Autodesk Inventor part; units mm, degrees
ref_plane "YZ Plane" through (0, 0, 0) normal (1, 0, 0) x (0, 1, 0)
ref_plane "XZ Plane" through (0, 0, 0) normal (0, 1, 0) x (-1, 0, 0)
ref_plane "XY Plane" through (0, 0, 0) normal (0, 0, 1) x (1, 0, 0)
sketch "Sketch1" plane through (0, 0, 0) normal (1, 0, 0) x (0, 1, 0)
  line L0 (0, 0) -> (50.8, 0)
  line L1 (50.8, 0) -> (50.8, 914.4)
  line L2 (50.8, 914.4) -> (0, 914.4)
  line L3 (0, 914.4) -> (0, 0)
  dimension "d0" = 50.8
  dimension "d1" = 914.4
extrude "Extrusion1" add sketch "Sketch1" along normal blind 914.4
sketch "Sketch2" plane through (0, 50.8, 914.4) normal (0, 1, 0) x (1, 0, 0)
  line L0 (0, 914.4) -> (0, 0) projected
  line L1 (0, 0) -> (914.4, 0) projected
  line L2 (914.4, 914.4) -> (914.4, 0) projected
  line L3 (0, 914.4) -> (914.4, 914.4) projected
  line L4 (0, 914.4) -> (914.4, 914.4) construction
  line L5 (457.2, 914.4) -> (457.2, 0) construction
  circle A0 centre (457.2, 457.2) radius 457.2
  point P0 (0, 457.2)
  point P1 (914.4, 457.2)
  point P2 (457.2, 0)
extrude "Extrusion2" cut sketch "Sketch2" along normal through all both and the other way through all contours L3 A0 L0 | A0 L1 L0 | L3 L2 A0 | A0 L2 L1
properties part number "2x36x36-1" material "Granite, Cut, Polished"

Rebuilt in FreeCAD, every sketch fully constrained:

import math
import FreeCAD as App
import Part
import Sketcher

V = App.Vector
Q = App.Units.Quantity


def add_polygon(sketch, points):
    """Adds a closed chain of lines whose ends are joined by coincident constraints."""
    first, n = sketch.GeometryCount, len(points)
    for a, b in zip(points, points[1:] + points[:1]):
        sketch.addGeometry(Part.LineSegment(App.Vector(*a, 0), App.Vector(*b, 0)), False)
    for i in range(n):
        sketch.addConstraint(Sketcher.Constraint("Coincident", first + i, 2, first + (i + 1) % n, 1))

doc = App.newDocument("Part")
body = doc.addObject("PartDesign::Body", "Body")

sketch1 = doc.addObject("Sketcher::SketchObject", "Sketch")
body.addObject(sketch1)
sketch1.AttachmentSupport = (doc.YZ_Plane, [""])
sketch1.MapMode = "FlatFace"
add_polygon(sketch1, [(0, 914.4), (0, 0), (50.8, 0), (50.8, 914.4)])
sketch1.addConstraint([
    Sketcher.Constraint("Vertical", 0),
    Sketcher.Constraint("Horizontal", 1),
    Sketcher.Constraint("Vertical", 2),
    Sketcher.Constraint("Horizontal", 3),
    Sketcher.Constraint("Coincident", 0, 2, -1, 1),
    Sketcher.Constraint("DistanceX", 1, 1, 1, 2, Q("2 in")),
    Sketcher.Constraint("DistanceY", 0, 2, 0, 1, Q("36 in")),
])
pad1 = doc.addObject("PartDesign::Pad", "Pad")
body.addObject(pad1)
pad1.Profile = sketch1
pad1.Length = Q("36 in")

sketch2 = doc.addObject("Sketcher::SketchObject", "Sketch001")
body.addObject(sketch2)
sketch2.AttachmentSupport = (doc.XZ_Plane, [""])
sketch2.MapMode = "FlatFace"
sketch2.AttachmentOffset = App.Placement(V(0, 0, -2 * 25.4), App.Rotation())
sketch2.addGeometry([
    Part.LineSegment(V(457.2, 0, 0), V(0, 0, 0)),
    Part.LineSegment(V(0, 0, 0), V(0, 457.2, 0)),
    Part.ArcOfCircle(Part.Circle(V(457.2, 457.2, 0), V(0, 0, 1), 457.2), math.radians(180), math.radians(270)),
    Part.ArcOfCircle(Part.Circle(V(457.2, 457.2, 0), V(0, 0, 1), 457.2), math.radians(90), math.radians(180)),
    Part.LineSegment(V(0, 457.2, 0), V(0, 914.4, 0)),
    Part.LineSegment(V(0, 914.4, 0), V(457.2, 914.4, 0)),
    Part.LineSegment(V(914.4, 0, 0), V(457.2, 0, 0)),
    Part.ArcOfCircle(Part.Circle(V(457.2, 457.2, 0), V(0, 0, 1), 457.2), math.radians(-90), math.radians(0)),
    Part.LineSegment(V(914.4, 457.2, 0), V(914.4, 0, 0)),
    Part.ArcOfCircle(Part.Circle(V(457.2, 457.2, 0), V(0, 0, 1), 457.2), math.radians(0), math.radians(90)),
    Part.LineSegment(V(457.2, 914.4, 0), V(914.4, 914.4, 0)),
    Part.LineSegment(V(914.4, 914.4, 0), V(914.4, 457.2, 0)),
], False)
sketch2.addConstraint([
    Sketcher.Constraint("Coincident", 0, 2, 1, 1),
    Sketcher.Constraint("Tangent", 1, 2, 2, 1),
    Sketcher.Constraint("Tangent", 2, 2, 0, 1),
    Sketcher.Constraint("Tangent", 3, 2, 4, 1),
    Sketcher.Constraint("Coincident", 4, 2, 5, 1),
    Sketcher.Constraint("Tangent", 5, 2, 3, 1),
    Sketcher.Constraint("Tangent", 6, 2, 7, 1),
    Sketcher.Constraint("Tangent", 7, 2, 8, 1),
    Sketcher.Constraint("Coincident", 8, 2, 6, 1),
    Sketcher.Constraint("Tangent", 9, 2, 10, 1),
    Sketcher.Constraint("Coincident", 10, 2, 11, 1),
    Sketcher.Constraint("Tangent", 11, 2, 9, 1),
    Sketcher.Constraint("Horizontal", 0),
    Sketcher.Constraint("Vertical", 1),
    Sketcher.Constraint("Vertical", 4),
    Sketcher.Constraint("Horizontal", 5),
    Sketcher.Constraint("Horizontal", 6),
    Sketcher.Constraint("Vertical", 8),
    Sketcher.Constraint("Horizontal", 10),
    Sketcher.Constraint("Vertical", 11),
    Sketcher.Constraint("Coincident", 0, 2, -1, 1),
    Sketcher.Constraint("Coincident", 3, 3, 2, 3),
    Sketcher.Constraint("Coincident", 7, 3, 2, 3),
    Sketcher.Constraint("Coincident", 9, 3, 2, 3),
    Sketcher.Constraint("Equal", 2, 3),
    Sketcher.Constraint("Equal", 3, 7),
    Sketcher.Constraint("Equal", 7, 9),
    Sketcher.Constraint("Radius", 2, Q("18 in")),
])
pocket1 = doc.addObject("PartDesign::Pocket", "Pocket")
body.addObject(pocket1)
pocket1.Profile = sketch2
pocket1.Type = "ThroughAll"
pocket1.Midplane = True

doc.recompute()
